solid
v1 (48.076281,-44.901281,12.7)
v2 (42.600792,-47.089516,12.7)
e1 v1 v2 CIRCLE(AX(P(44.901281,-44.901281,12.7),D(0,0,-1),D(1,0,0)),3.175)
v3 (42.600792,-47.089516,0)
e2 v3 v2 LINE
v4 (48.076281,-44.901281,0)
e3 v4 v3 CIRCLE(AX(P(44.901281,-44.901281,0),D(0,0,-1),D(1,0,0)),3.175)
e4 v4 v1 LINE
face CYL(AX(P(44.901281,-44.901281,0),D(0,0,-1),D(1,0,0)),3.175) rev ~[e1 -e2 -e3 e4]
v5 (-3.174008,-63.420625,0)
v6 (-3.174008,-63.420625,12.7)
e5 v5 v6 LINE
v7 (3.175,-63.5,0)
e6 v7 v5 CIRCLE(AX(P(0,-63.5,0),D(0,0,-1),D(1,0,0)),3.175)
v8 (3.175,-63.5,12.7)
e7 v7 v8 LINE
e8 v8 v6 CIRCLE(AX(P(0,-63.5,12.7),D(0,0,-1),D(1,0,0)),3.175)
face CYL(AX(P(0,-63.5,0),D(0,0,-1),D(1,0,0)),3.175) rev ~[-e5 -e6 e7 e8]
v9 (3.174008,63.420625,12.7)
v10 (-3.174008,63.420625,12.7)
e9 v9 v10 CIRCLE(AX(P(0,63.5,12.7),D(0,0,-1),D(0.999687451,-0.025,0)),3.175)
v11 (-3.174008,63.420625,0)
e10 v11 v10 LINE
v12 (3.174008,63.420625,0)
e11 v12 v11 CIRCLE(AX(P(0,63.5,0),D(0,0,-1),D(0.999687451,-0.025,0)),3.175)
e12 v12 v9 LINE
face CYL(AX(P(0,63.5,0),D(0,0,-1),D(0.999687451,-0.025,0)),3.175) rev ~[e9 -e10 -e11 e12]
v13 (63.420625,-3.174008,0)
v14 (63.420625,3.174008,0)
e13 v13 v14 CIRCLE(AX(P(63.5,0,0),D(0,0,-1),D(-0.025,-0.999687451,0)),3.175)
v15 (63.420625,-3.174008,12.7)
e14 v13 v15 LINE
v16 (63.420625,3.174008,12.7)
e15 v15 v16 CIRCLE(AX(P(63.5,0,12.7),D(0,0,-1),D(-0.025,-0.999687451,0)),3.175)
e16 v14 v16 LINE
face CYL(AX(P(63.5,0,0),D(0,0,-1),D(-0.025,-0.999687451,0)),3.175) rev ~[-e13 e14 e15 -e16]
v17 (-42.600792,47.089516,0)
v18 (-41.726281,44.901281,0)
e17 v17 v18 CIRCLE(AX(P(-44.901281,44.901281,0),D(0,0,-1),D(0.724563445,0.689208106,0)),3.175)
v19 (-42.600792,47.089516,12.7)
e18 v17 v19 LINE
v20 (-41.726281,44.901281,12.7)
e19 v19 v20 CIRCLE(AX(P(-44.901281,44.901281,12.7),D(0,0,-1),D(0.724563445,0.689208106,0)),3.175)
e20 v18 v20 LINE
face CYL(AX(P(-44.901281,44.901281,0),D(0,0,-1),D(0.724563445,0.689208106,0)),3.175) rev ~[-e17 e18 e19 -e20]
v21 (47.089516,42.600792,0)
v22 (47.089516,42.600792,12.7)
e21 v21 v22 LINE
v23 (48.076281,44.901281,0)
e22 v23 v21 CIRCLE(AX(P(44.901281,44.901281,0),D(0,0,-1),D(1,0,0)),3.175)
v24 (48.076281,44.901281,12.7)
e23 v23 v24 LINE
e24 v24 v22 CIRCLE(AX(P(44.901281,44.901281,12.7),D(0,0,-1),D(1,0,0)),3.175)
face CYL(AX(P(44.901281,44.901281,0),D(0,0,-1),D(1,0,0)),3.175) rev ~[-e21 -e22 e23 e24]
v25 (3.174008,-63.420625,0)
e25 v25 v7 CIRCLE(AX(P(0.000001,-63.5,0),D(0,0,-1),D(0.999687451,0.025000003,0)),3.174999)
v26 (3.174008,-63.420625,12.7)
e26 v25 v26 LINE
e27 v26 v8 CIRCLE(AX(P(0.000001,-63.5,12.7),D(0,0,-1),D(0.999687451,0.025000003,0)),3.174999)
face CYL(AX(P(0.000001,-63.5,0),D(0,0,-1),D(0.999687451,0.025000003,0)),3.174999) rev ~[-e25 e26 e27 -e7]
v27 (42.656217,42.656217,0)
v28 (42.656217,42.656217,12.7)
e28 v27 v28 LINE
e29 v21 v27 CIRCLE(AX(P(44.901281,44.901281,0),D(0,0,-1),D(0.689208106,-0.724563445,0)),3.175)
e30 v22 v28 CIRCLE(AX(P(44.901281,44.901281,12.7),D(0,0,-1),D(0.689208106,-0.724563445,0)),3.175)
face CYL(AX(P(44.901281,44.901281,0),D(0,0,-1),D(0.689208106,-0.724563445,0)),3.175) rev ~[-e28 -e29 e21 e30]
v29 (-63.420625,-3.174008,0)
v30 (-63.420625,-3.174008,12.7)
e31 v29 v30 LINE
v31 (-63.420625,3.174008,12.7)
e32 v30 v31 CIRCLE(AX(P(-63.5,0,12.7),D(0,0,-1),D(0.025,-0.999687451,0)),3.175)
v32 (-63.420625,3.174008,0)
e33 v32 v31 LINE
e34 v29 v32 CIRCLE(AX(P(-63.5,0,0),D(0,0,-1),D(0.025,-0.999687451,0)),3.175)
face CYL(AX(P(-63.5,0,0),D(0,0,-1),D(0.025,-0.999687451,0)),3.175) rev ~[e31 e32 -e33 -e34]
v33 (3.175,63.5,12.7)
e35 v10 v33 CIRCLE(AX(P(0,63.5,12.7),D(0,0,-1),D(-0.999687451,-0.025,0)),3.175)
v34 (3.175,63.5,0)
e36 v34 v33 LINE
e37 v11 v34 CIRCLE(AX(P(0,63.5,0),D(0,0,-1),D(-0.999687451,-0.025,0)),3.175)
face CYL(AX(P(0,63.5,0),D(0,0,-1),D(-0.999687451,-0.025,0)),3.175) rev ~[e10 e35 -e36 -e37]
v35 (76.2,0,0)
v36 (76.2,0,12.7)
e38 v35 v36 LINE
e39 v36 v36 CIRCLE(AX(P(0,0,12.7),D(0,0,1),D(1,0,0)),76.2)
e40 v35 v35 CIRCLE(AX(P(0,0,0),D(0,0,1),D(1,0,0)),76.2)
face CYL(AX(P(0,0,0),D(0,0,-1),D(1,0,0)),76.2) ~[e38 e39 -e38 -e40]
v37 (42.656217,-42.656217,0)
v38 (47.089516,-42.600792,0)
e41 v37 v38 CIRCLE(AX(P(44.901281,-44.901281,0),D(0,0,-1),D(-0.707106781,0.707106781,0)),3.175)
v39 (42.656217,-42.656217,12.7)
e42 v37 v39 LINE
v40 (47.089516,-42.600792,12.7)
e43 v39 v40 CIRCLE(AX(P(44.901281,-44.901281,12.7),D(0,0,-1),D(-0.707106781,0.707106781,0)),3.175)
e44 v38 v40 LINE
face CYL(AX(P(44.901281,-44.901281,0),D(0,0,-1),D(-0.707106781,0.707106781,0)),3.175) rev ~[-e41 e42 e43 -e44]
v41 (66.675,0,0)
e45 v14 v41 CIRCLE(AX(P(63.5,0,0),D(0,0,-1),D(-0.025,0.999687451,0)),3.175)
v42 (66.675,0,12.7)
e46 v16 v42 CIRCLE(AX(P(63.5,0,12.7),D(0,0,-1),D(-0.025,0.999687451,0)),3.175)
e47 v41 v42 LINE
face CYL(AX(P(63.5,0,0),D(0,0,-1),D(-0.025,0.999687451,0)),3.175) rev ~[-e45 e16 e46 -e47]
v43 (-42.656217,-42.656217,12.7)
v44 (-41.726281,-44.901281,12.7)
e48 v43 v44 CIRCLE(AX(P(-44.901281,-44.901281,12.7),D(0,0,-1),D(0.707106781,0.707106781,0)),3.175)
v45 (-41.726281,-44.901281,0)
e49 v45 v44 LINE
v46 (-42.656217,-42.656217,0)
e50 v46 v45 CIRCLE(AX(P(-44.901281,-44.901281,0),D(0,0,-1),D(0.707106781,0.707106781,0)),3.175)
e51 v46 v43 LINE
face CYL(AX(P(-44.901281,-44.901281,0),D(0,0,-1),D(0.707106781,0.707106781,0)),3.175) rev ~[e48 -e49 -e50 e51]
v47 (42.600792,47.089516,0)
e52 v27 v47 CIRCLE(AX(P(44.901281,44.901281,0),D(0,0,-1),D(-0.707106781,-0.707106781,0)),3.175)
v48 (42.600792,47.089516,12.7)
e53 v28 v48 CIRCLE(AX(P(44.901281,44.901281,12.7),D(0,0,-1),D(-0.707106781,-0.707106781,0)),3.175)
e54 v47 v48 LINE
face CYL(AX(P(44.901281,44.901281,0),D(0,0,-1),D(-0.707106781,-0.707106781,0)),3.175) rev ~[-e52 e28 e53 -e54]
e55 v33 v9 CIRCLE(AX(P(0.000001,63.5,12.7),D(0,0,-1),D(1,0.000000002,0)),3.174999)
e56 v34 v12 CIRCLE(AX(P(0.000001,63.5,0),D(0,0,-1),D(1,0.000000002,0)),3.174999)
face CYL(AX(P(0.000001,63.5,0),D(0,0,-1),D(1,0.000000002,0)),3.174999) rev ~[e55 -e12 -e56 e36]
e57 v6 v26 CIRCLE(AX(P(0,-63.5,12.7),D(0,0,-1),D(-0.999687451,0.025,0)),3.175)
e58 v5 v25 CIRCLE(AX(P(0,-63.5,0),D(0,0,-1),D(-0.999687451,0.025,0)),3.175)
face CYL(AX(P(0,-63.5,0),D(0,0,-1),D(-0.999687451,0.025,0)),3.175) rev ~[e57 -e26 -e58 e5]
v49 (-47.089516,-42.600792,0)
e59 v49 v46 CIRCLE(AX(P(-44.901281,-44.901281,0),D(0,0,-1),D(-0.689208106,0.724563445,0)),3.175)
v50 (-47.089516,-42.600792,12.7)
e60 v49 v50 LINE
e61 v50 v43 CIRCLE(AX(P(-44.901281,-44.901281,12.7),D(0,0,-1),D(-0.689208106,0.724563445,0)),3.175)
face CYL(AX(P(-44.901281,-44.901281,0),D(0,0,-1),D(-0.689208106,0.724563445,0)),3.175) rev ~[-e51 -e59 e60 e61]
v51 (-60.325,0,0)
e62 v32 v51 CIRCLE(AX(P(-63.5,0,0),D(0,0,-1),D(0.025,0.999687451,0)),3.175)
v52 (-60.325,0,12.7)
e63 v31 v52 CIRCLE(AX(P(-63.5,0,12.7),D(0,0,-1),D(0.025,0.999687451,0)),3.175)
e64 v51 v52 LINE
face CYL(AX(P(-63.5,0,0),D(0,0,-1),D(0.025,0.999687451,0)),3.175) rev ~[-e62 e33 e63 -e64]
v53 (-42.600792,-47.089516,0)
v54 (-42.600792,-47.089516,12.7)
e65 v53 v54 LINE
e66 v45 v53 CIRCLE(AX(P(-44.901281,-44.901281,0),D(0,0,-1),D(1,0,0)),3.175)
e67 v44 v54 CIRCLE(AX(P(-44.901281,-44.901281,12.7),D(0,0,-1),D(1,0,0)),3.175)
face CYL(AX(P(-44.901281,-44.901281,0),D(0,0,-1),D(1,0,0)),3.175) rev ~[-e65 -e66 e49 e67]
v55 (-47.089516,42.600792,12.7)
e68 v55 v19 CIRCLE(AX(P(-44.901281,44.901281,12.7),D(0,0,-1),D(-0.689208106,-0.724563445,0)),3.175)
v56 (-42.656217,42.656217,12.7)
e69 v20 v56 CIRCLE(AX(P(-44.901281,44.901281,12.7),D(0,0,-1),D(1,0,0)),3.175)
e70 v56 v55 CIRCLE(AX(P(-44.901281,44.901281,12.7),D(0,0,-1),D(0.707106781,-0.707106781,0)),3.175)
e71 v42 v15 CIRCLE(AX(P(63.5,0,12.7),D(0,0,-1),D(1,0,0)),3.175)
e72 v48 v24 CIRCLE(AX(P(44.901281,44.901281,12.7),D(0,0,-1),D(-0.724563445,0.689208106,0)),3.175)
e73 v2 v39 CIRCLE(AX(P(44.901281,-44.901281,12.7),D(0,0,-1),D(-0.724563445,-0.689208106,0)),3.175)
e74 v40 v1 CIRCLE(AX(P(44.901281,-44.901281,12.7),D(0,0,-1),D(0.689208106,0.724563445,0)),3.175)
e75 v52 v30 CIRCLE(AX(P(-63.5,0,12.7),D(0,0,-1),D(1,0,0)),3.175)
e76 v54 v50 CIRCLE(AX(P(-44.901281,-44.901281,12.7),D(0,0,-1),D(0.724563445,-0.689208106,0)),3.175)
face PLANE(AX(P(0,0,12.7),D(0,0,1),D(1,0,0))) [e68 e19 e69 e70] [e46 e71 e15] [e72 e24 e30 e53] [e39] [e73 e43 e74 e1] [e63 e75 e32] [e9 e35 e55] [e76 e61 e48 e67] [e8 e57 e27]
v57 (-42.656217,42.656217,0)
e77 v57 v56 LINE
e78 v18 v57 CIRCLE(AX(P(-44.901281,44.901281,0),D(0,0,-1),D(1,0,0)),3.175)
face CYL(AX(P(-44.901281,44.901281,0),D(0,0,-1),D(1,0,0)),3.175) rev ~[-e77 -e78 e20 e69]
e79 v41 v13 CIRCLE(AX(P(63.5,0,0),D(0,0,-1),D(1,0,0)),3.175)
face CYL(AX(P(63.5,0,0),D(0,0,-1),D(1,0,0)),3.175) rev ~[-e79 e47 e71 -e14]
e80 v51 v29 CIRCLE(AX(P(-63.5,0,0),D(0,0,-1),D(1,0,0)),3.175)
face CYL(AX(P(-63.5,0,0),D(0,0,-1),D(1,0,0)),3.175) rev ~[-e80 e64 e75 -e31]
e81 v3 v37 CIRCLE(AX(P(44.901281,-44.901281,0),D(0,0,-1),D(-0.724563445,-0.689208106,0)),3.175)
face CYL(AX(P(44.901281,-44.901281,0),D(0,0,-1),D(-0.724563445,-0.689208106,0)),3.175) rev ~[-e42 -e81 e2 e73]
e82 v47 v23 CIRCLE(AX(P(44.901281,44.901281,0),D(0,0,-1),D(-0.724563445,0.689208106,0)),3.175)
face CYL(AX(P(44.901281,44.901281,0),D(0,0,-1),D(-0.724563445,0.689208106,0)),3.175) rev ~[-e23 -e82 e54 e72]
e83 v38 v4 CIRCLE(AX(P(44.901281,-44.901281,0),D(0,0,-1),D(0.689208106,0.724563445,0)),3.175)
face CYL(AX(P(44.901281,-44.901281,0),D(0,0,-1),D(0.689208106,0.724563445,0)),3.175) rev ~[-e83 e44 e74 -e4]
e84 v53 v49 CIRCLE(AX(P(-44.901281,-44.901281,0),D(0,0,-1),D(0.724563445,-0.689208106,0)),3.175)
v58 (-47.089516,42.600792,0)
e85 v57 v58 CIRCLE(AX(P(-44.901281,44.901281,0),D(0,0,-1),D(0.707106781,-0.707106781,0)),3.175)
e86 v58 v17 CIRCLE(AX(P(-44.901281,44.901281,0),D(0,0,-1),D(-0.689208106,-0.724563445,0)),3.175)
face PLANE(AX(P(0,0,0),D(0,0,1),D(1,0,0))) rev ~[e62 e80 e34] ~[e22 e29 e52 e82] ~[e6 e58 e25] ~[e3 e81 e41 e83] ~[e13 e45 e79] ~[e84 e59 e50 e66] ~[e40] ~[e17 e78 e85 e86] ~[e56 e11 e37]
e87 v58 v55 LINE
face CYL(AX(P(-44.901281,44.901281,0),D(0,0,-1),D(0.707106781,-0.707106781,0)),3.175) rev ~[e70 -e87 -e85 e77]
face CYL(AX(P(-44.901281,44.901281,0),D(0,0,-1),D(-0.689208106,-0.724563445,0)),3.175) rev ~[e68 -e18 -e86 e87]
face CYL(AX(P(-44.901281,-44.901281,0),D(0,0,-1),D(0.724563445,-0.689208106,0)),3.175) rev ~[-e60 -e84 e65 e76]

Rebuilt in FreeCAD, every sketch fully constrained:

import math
import FreeCAD as App
import Part
import Sketcher
from FreeCAD import Vector
Q = App.Units.Quantity

doc = App.newDocument("Part")
body = doc.addObject("PartDesign::Body", "Body")

sketch1 = doc.addObject("Sketcher::SketchObject", "Sketch")
body.addObject(sketch1)
sketch1.AttachmentSupport = (doc.XY_Plane, [""])
sketch1.MapMode = "FlatFace"
sketch1.addGeometry([
    Part.Circle(Vector(0, 0, 0), Vector(0, 0, 1), 76.2),
    Part.ArcOfCircle(Part.Circle(Vector(44.9, 44.9, 0), Vector(0, 0, 1), 3.17), math.radians(-46), math.radians(0)),
    Part.ArcOfCircle(Part.Circle(Vector(44.9, 44.9, 0), Vector(0, 0, 1), 3.17), math.radians(-135), math.radians(-46)),
    Part.ArcOfCircle(Part.Circle(Vector(44.9, 44.9, 0), Vector(0, 0, 1), 3.17), math.radians(136), math.radians(225)),
    Part.ArcOfCircle(Part.Circle(Vector(44.9, 44.9, 0), Vector(0, 0, 1), 3.17), math.radians(0), math.radians(136)),
    Part.ArcOfCircle(Part.Circle(Vector(-44.9, 44.9, 0), Vector(0, 0, 1), 3.17), math.radians(-134), math.radians(-45)),
    Part.ArcOfCircle(Part.Circle(Vector(-44.9, 44.9, 0), Vector(0, 0, 1), 3.17), math.radians(44), math.radians(226)),
    Part.ArcOfCircle(Part.Circle(Vector(-44.9, 44.9, 0), Vector(0, 0, 1), 3.17), math.radians(0), math.radians(44)),
    Part.ArcOfCircle(Part.Circle(Vector(-44.9, 44.9, 0), Vector(0, 0, 1), 3.17), math.radians(-45), math.radians(0)),
    Part.ArcOfCircle(Part.Circle(Vector(0, 63.5, 0), Vector(0, 0, 1), 3.17), math.radians(0), math.radians(181)),
    Part.ArcOfCircle(Part.Circle(Vector(0, 63.5, 0), Vector(0, 0, 1), 3.17), math.radians(-1.43), math.radians(0)),
    Part.ArcOfCircle(Part.Circle(Vector(0, 63.5, 0), Vector(0, 0, 1), 3.17), math.radians(-179), math.radians(-1)),
    Part.ArcOfCircle(Part.Circle(Vector(63.5, 0, 0), Vector(0, 0, 1), 3.17), math.radians(0), math.radians(91)),
    Part.ArcOfCircle(Part.Circle(Vector(63.5, 0, 0), Vector(0, 0, 1), 3.17), math.radians(-91), math.radians(0)),
    Part.ArcOfCircle(Part.Circle(Vector(63.5, 0, 0), Vector(0, 0, 1), 3.17), math.radians(91), math.radians(269)),
    Part.ArcOfCircle(Part.Circle(Vector(44.9, -44.9, 0), Vector(0, 0, 1), 3.17), math.radians(0), math.radians(46)),
    Part.ArcOfCircle(Part.Circle(Vector(44.9, -44.9, 0), Vector(0, 0, 1), 3.17), math.radians(-136), math.radians(0)),
    Part.ArcOfCircle(Part.Circle(Vector(44.9, -44.9, 0), Vector(0, 0, 1), 3.17), math.radians(135), math.radians(224)),
    Part.ArcOfCircle(Part.Circle(Vector(44.9, -44.9, 0), Vector(0, 0, 1), 3.17), math.radians(46), math.radians(135)),
    Part.ArcOfCircle(Part.Circle(Vector(0, -63.5, 0), Vector(0, 0, 1), 3.17), math.radians(0), math.radians(1.43)),
    Part.ArcOfCircle(Part.Circle(Vector(0, -63.5, 0), Vector(0, 0, 1), 3.17), math.radians(179), math.radians(360)),
    Part.ArcOfCircle(Part.Circle(Vector(0, -63.5, 0), Vector(0, 0, 1), 3.17), math.radians(1), math.radians(179)),
    Part.ArcOfCircle(Part.Circle(Vector(-44.9, -44.9, 0), Vector(0, 0, 1), 3.17), math.radians(134), math.radians(316)),
    Part.ArcOfCircle(Part.Circle(Vector(-44.9, -44.9, 0), Vector(0, 0, 1), 3.17), math.radians(45), math.radians(134)),
    Part.ArcOfCircle(Part.Circle(Vector(-44.9, -44.9, 0), Vector(0, 0, 1), 3.17), math.radians(0), math.radians(45)),
    Part.ArcOfCircle(Part.Circle(Vector(-44.9, -44.9, 0), Vector(0, 0, 1), 3.17), math.radians(-44), math.radians(0)),
    Part.ArcOfCircle(Part.Circle(Vector(-63.5, 0, 0), Vector(0, 0, 1), 3.17), math.radians(89), math.radians(271)),
    Part.ArcOfCircle(Part.Circle(Vector(-63.5, 0, 0), Vector(0, 0, 1), 3.17), math.radians(0), math.radians(89)),
    Part.ArcOfCircle(Part.Circle(Vector(-63.5, 0, 0), Vector(0, 0, 1), 3.17), math.radians(-89), math.radians(0)),
], False)
sketch1.addConstraint([
    Sketcher.Constraint("Tangent", 1, 1, 2, 2),
    Sketcher.Constraint("Tangent", 2, 1, 3, 2),
    Sketcher.Constraint("Tangent", 3, 1, 4, 2),
    Sketcher.Constraint("Tangent", 4, 1, 1, 2),
    Sketcher.Constraint("Tangent", 5, 1, 6, 2),
    Sketcher.Constraint("Tangent", 6, 1, 7, 2),
    Sketcher.Constraint("Tangent", 7, 1, 8, 2),
    Sketcher.Constraint("Tangent", 8, 1, 5, 2),
    Sketcher.Constraint("Tangent", 9, 1, 10, 2),
    Sketcher.Constraint("Tangent", 10, 1, 11, 2),
    Sketcher.Constraint("Tangent", 11, 1, 9, 2),
    Sketcher.Constraint("Tangent", 12, 1, 13, 2),
    Sketcher.Constraint("Tangent", 13, 1, 14, 2),
    Sketcher.Constraint("Tangent", 14, 1, 12, 2),
    Sketcher.Constraint("Tangent", 15, 1, 16, 2),
    Sketcher.Constraint("Tangent", 16, 1, 17, 2),
    Sketcher.Constraint("Tangent", 17, 1, 18, 2),
    Sketcher.Constraint("Tangent", 18, 1, 15, 2),
    Sketcher.Constraint("Tangent", 19, 1, 20, 2),
    Sketcher.Constraint("Tangent", 20, 1, 21, 2),
    Sketcher.Constraint("Tangent", 21, 1, 19, 2),
    Sketcher.Constraint("Tangent", 22, 1, 23, 2),
    Sketcher.Constraint("Tangent", 23, 1, 24, 2),
    Sketcher.Constraint("Tangent", 24, 1, 25, 2),
    Sketcher.Constraint("Tangent", 25, 1, 22, 2),
    Sketcher.Constraint("Tangent", 26, 1, 27, 2),
    Sketcher.Constraint("Tangent", 27, 1, 28, 2),
    Sketcher.Constraint("Tangent", 28, 1, 26, 2),
    Sketcher.Constraint("Coincident", 0, 3, -1, 1),
    Sketcher.Constraint("Equal", 1, 2),
    Sketcher.Constraint("Equal", 4, 5),
    Sketcher.Constraint("Equal", 5, 6),
    Sketcher.Constraint("Equal", 8, 9),
    Sketcher.Constraint("Equal", 11, 12),
    Sketcher.Constraint("Equal", 14, 15),
    Sketcher.Constraint("Equal", 15, 16),
    Sketcher.Constraint("Equal", 18, 19),
    Sketcher.Constraint("Equal", 21, 22),
    Sketcher.Constraint("Equal", 22, 23),
    Sketcher.Constraint("Equal", 25, 26),
    Sketcher.Constraint("Symmetric", 5, 3, 15, 3, -1, 1),
    Sketcher.Constraint("Symmetric", 9, 3, 19, 3, -1, 1),
    Sketcher.Constraint("Symmetric", 1, 3, 22, 3, -1, 1),
    Sketcher.Constraint("Symmetric", 12, 3, 26, 3, -1, 1),
    Sketcher.Constraint("Symmetric", 1, 3, 5, 3, -2),
    Sketcher.Constraint("Symmetric", 10, 1, 11, 1, -2),
    Sketcher.Constraint("Symmetric", 14, 1, 26, 1, -2),
    Sketcher.Constraint("PointOnObject", 12, 1, -1),
    Sketcher.Constraint("PointOnObject", 27, 1, -1),
    Sketcher.Constraint("Horizontal", 8, 3, 4, 1),
    Sketcher.Constraint("Horizontal", 1, 1, 5, 1),
    Sketcher.Constraint("Horizontal", 3, 1, 6, 1),
    Sketcher.Constraint("Horizontal", 4, 1, 7, 1),
    Sketcher.Constraint("Horizontal", 2, 1, 8, 1),
    Sketcher.Constraint("Horizontal", 11, 3, 9, 1),
    Sketcher.Constraint("Horizontal", 25, 3, 15, 1),
    Sketcher.Constraint("Horizontal", 21, 3, 19, 1),
    Sketcher.Constraint("Horizontal", 20, 1, 21, 1),
    Sketcher.Constraint("Horizontal", 18, 1, 22, 1),
    Sketcher.Constraint("Horizontal", 17, 1, 23, 1),
    Sketcher.Constraint("Horizontal", 15, 1, 24, 1),
    Sketcher.Constraint("Horizontal", 16, 1, 25, 1),
    Sketcher.Constraint("Horizontal", 13, 1, 28, 1),
    Sketcher.Constraint("Vertical", 13, 1, 14, 1),
    Sketcher.Constraint("Vertical", 3, 1, 16, 1),
    Sketcher.Constraint("Vertical", 2, 1, 17, 1),
    Sketcher.Constraint("Vertical", 1, 1, 18, 1),
    Sketcher.Constraint("Vertical", 11, 1, 20, 1),
    Sketcher.Constraint("Diameter", 0, Q("6 in")),
    Sketcher.Constraint("Radius", 1, Q("0.125 in")),
    Sketcher.Constraint("DistanceY", -1, 1, 9, 3, Q("2.5 in")),
    Sketcher.Constraint("DistanceX", -1, 1, 12, 3, Q("2.5 in")),
    Sketcher.Constraint("DistanceX", 2, 1, 1, 1, Q("4.4333 mm")),
    Sketcher.Constraint("DistanceY", 2, 1, 3, 1, Q("4.4333 mm")),
    Sketcher.Constraint("DistanceX", -1, 1, 1, 3, Q("44.901281 mm")),
    Sketcher.Constraint("DistanceY", -1, 1, 1, 3, Q("44.901281 mm")),
    Sketcher.Constraint("DistanceY", -1, 1, 1, 1, Q("42.600792 mm")),
    Sketcher.Constraint("DistanceY", 3, 1, 10, 1, Q("16.331109 mm")),
    Sketcher.Constraint("DistanceX", 26, 1, 5, 1, Q("16.331109 mm")),
])
pad1 = doc.addObject("PartDesign::Pad", "Pad")
body.addObject(pad1)
pad1.Profile = sketch1
pad1.Length = Q("0.5 in")

doc.recompute()
